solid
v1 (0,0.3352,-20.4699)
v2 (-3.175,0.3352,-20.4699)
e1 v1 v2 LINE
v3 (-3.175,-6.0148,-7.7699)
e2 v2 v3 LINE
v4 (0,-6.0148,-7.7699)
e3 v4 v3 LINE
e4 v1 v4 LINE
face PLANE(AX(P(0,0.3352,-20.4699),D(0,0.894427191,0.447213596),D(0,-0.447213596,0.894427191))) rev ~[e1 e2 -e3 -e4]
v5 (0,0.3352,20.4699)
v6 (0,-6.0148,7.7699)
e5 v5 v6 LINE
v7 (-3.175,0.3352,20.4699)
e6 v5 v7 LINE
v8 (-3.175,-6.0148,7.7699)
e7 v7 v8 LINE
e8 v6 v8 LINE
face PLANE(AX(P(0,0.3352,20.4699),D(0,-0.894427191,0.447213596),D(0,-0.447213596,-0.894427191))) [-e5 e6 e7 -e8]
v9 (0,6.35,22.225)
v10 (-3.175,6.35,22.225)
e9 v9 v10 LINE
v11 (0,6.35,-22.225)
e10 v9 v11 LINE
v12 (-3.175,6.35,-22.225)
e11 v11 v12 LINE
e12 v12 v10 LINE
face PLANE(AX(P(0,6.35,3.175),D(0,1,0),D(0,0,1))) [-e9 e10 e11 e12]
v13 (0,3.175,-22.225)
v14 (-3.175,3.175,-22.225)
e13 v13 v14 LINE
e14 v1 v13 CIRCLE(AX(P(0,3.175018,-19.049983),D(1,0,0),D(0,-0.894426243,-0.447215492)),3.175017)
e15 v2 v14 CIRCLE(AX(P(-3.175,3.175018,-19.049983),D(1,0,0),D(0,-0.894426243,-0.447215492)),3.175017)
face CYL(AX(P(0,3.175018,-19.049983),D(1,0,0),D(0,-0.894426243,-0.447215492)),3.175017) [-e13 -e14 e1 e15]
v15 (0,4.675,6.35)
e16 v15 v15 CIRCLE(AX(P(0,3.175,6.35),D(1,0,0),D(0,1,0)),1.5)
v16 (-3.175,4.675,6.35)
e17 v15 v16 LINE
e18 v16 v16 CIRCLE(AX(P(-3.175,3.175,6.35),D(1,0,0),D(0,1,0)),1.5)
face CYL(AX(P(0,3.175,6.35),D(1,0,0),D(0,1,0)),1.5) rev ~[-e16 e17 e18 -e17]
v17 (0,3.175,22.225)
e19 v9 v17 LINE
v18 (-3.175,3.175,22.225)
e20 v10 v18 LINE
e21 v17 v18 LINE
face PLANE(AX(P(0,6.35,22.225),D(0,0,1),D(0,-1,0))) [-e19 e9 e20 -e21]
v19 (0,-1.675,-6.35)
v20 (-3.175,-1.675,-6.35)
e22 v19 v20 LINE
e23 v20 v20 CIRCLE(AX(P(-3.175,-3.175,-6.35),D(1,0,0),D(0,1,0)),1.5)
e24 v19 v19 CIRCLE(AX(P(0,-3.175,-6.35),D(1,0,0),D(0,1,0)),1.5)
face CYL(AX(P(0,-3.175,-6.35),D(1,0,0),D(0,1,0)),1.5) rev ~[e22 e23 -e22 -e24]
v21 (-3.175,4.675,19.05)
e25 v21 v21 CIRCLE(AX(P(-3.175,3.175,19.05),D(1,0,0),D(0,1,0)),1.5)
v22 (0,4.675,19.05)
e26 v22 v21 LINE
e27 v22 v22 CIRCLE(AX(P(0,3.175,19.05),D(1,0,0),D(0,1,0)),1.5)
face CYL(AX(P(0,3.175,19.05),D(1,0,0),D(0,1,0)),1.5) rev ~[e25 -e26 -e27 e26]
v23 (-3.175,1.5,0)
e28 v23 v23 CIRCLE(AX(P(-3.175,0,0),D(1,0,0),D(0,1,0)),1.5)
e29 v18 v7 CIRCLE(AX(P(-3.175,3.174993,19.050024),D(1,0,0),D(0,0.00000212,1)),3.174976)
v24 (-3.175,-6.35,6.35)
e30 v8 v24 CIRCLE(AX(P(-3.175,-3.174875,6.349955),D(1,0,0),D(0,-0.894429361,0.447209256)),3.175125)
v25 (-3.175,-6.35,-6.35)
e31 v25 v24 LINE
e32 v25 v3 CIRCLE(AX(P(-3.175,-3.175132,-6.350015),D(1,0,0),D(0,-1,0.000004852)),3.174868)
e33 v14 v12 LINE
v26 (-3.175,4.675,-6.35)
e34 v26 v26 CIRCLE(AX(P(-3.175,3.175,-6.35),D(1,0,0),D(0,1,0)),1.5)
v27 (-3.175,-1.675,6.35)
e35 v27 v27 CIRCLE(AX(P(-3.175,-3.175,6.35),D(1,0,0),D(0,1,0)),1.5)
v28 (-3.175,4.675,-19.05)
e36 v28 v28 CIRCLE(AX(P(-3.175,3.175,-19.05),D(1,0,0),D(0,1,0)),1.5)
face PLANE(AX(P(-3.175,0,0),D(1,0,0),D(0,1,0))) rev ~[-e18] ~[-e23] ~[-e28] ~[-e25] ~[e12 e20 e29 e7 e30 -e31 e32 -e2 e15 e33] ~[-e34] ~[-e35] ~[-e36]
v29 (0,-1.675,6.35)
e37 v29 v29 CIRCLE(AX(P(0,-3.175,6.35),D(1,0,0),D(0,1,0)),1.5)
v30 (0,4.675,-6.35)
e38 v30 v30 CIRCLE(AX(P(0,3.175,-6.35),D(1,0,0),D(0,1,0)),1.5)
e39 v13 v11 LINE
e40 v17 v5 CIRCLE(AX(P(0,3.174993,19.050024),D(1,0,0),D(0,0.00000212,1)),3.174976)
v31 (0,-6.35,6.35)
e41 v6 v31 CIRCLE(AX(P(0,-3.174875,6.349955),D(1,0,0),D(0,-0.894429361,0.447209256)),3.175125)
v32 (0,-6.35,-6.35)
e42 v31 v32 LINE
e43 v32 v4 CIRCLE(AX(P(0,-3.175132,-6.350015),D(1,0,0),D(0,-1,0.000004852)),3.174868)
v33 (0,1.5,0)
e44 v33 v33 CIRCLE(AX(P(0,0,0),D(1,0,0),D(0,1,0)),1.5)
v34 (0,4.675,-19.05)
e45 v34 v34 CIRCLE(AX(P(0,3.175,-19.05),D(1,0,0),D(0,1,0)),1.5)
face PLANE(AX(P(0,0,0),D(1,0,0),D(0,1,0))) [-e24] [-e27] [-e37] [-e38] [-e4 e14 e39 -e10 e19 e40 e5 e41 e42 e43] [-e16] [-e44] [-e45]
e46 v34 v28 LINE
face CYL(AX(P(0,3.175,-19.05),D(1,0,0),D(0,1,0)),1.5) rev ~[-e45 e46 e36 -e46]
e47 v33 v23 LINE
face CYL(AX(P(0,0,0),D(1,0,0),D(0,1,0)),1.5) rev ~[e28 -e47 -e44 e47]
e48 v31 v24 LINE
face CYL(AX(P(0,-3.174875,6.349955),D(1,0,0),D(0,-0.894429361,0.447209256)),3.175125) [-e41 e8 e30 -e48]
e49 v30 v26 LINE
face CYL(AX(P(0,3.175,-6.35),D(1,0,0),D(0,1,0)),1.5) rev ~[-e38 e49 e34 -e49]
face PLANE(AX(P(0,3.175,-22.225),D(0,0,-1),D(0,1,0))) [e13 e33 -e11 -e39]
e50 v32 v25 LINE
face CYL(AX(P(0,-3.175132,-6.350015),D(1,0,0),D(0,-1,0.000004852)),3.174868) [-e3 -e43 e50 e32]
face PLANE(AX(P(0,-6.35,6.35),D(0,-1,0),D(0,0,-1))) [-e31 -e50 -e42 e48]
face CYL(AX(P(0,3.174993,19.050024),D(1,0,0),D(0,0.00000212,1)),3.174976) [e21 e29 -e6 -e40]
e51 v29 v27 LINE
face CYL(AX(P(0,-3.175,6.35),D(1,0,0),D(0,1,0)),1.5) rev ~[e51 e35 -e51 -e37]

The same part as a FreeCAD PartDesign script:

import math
import FreeCAD as App
import Part
import Sketcher
from FreeCAD import Vector
Q = App.Units.Quantity

doc = App.newDocument("Part")
params = doc.addObject("Spreadsheet::Sheet", "Params")
for row, (alias, value) in enumerate([
    ("sketch1_height", "0.5 in"),
    ("sketch1_radius", "0.125 in"),
    ("sketch1_height2", "1.75 in"),
    ("pad1_length", "0.125 in"),
], start=1):
    params.set(f"A{row}", alias)
    params.set(f"B{row}", "=" + value)
    params.setAlias(f"B{row}", alias)

body = doc.addObject("PartDesign::Body", "Body")

# Sketch on YZ plane
sketch1 = doc.addObject("Sketcher::SketchObject", "Sketch")
body.addObject(sketch1)
sketch1.AttachmentSupport = (doc.YZ_Plane, [""])
sketch1.MapMode = "FlatFace"
sketch1.addGeometry([
    Part.LineSegment(Vector(6.35, 22.225, 0), Vector(3.175, 22.225, 0)),  # 0
    Part.ArcOfCircle(Part.Circle(Vector(3.175, 19.05, 0), Vector(0, 0, 1), 3.175), math.radians(90), math.radians(153.434949)),  # 1
    Part.LineSegment(Vector(0.3352, 20.4699, 0), Vector(-6.0148, 7.7699, 0)),  # 2
    Part.ArcOfCircle(Part.Circle(Vector(-3.175, 6.35, 0), Vector(0, 0, 1), 3.174993), math.radians(153.434949), math.radians(180)),  # 3
    Part.LineSegment(Vector(-6.35, 6.35, 0), Vector(-6.35, -6.35, 0)),  # 4
    Part.ArcOfCircle(Part.Circle(Vector(-3.175, -6.35, 0), Vector(0, 0, 1), 3.175), math.radians(180), math.radians(206.565051)),  # 5
    Part.LineSegment(Vector(-6.0148, -7.7699, 0), Vector(0.3352, -20.4699, 0)),  # 6
    Part.ArcOfCircle(Part.Circle(Vector(3.175, -19.05, 0), Vector(0, 0, 1), 3.174993), math.radians(-153.434949), math.radians(-90)),  # 7
    Part.LineSegment(Vector(3.175, -22.225, 0), Vector(6.35, -22.225, 0)),  # 8
    Part.LineSegment(Vector(6.35, -22.225, 0), Vector(6.35, 22.225, 0)),  # 9
    Part.Circle(Vector(-3.175, 6.35, 0), Vector(0, 0, 1), 1.5),  # 10
    Part.Circle(Vector(3.175, 6.35, 0), Vector(0, 0, 1), 1.5),  # 11
    Part.Circle(Vector(3.175, 19.05, 0), Vector(0, 0, 1), 1.5),  # 12
    Part.Circle(Vector(0, 0, 0), Vector(0, 0, 1), 1.5),  # 13
    Part.Circle(Vector(3.175, -6.35, 0), Vector(0, 0, 1), 1.5),  # 14
    Part.Circle(Vector(-3.175, -6.35, 0), Vector(0, 0, 1), 1.5),  # 15
    Part.Circle(Vector(3.175, -19.05, 0), Vector(0, 0, 1), 1.5),  # 16
], False)
sketch1.addConstraint([
    Sketcher.Constraint("Tangent", 0, 2, 1, 1),
    Sketcher.Constraint("Tangent", 1, 2, 2, 1),
    Sketcher.Constraint("Tangent", 2, 2, 3, 1),
    Sketcher.Constraint("Tangent", 3, 2, 4, 1),
    Sketcher.Constraint("Tangent", 4, 2, 5, 1),
    Sketcher.Constraint("Tangent", 5, 2, 6, 1),
    Sketcher.Constraint("Tangent", 6, 2, 7, 1),
    Sketcher.Constraint("Tangent", 7, 2, 8, 1),
    Sketcher.Constraint("Coincident", 8, 2, 9, 1),
    Sketcher.Constraint("Coincident", 9, 2, 0, 1),
    Sketcher.Constraint("Horizontal", 0),
    Sketcher.Constraint("Vertical", 4),
    Sketcher.Constraint("Horizontal", 8),
    Sketcher.Constraint("Vertical", 9),
    Sketcher.Constraint("Coincident", 13, 3, -1, 1),
    Sketcher.Constraint("Coincident", 10, 3, 3, 3),
    Sketcher.Constraint("Coincident", 12, 3, 1, 3),
    Sketcher.Constraint("Coincident", 15, 3, 5, 3),
    Sketcher.Constraint("Coincident", 16, 3, 7, 3),
    Sketcher.Constraint("Equal", 1, 3),
    Sketcher.Constraint("Equal", 3, 5),
    Sketcher.Constraint("Equal", 5, 7),
    Sketcher.Constraint("Equal", 10, 11),
    Sketcher.Constraint("Equal", 11, 12),
    Sketcher.Constraint("Equal", 12, 13),
    Sketcher.Constraint("Equal", 13, 14),
    Sketcher.Constraint("Equal", 14, 15),
    Sketcher.Constraint("Equal", 15, 16),
    Sketcher.Constraint("Symmetric", 5, 3, 11, 3, -1, 1),
    Sketcher.Constraint("Symmetric", 3, 3, 14, 3, -1, 1),
    Sketcher.Constraint("Symmetric", 1, 3, 7, 3, -1),
    Sketcher.Constraint("Horizontal", 10, 3, 11, 3),
    Sketcher.Constraint("Vertical", 7, 3, 11, 3),
    Sketcher.Constraint("DistanceY", 4, 2, 4, 1, Q("0.5 in")),
    Sketcher.Constraint("Radius", 1, Q("0.125 in")),
    Sketcher.Constraint("Diameter", 10, Q("0.1181 in")),
    Sketcher.Constraint("DistanceY", 9, 1, 9, 2, Q("1.75 in")),
    Sketcher.Constraint("DistanceX", 3, 2, -1, 1, Q("0.25 in")),
    Sketcher.Constraint("DistanceX", -1, 1, 8, 2, Q("0.25 in")),
])
sketch1.setExpression("Constraints[33]", "Params.sketch1_height")
sketch1.setExpression("Constraints[34]", "Params.sketch1_radius")
sketch1.setExpression("Constraints[36]", "Params.sketch1_height2")
pad1 = doc.addObject("PartDesign::Pad", "Pad")
body.addObject(pad1)
pad1.Profile = sketch1
pad1.setExpression("Length", "Params.pad1_length")
pad1.Reversed = True

doc.recompute()
